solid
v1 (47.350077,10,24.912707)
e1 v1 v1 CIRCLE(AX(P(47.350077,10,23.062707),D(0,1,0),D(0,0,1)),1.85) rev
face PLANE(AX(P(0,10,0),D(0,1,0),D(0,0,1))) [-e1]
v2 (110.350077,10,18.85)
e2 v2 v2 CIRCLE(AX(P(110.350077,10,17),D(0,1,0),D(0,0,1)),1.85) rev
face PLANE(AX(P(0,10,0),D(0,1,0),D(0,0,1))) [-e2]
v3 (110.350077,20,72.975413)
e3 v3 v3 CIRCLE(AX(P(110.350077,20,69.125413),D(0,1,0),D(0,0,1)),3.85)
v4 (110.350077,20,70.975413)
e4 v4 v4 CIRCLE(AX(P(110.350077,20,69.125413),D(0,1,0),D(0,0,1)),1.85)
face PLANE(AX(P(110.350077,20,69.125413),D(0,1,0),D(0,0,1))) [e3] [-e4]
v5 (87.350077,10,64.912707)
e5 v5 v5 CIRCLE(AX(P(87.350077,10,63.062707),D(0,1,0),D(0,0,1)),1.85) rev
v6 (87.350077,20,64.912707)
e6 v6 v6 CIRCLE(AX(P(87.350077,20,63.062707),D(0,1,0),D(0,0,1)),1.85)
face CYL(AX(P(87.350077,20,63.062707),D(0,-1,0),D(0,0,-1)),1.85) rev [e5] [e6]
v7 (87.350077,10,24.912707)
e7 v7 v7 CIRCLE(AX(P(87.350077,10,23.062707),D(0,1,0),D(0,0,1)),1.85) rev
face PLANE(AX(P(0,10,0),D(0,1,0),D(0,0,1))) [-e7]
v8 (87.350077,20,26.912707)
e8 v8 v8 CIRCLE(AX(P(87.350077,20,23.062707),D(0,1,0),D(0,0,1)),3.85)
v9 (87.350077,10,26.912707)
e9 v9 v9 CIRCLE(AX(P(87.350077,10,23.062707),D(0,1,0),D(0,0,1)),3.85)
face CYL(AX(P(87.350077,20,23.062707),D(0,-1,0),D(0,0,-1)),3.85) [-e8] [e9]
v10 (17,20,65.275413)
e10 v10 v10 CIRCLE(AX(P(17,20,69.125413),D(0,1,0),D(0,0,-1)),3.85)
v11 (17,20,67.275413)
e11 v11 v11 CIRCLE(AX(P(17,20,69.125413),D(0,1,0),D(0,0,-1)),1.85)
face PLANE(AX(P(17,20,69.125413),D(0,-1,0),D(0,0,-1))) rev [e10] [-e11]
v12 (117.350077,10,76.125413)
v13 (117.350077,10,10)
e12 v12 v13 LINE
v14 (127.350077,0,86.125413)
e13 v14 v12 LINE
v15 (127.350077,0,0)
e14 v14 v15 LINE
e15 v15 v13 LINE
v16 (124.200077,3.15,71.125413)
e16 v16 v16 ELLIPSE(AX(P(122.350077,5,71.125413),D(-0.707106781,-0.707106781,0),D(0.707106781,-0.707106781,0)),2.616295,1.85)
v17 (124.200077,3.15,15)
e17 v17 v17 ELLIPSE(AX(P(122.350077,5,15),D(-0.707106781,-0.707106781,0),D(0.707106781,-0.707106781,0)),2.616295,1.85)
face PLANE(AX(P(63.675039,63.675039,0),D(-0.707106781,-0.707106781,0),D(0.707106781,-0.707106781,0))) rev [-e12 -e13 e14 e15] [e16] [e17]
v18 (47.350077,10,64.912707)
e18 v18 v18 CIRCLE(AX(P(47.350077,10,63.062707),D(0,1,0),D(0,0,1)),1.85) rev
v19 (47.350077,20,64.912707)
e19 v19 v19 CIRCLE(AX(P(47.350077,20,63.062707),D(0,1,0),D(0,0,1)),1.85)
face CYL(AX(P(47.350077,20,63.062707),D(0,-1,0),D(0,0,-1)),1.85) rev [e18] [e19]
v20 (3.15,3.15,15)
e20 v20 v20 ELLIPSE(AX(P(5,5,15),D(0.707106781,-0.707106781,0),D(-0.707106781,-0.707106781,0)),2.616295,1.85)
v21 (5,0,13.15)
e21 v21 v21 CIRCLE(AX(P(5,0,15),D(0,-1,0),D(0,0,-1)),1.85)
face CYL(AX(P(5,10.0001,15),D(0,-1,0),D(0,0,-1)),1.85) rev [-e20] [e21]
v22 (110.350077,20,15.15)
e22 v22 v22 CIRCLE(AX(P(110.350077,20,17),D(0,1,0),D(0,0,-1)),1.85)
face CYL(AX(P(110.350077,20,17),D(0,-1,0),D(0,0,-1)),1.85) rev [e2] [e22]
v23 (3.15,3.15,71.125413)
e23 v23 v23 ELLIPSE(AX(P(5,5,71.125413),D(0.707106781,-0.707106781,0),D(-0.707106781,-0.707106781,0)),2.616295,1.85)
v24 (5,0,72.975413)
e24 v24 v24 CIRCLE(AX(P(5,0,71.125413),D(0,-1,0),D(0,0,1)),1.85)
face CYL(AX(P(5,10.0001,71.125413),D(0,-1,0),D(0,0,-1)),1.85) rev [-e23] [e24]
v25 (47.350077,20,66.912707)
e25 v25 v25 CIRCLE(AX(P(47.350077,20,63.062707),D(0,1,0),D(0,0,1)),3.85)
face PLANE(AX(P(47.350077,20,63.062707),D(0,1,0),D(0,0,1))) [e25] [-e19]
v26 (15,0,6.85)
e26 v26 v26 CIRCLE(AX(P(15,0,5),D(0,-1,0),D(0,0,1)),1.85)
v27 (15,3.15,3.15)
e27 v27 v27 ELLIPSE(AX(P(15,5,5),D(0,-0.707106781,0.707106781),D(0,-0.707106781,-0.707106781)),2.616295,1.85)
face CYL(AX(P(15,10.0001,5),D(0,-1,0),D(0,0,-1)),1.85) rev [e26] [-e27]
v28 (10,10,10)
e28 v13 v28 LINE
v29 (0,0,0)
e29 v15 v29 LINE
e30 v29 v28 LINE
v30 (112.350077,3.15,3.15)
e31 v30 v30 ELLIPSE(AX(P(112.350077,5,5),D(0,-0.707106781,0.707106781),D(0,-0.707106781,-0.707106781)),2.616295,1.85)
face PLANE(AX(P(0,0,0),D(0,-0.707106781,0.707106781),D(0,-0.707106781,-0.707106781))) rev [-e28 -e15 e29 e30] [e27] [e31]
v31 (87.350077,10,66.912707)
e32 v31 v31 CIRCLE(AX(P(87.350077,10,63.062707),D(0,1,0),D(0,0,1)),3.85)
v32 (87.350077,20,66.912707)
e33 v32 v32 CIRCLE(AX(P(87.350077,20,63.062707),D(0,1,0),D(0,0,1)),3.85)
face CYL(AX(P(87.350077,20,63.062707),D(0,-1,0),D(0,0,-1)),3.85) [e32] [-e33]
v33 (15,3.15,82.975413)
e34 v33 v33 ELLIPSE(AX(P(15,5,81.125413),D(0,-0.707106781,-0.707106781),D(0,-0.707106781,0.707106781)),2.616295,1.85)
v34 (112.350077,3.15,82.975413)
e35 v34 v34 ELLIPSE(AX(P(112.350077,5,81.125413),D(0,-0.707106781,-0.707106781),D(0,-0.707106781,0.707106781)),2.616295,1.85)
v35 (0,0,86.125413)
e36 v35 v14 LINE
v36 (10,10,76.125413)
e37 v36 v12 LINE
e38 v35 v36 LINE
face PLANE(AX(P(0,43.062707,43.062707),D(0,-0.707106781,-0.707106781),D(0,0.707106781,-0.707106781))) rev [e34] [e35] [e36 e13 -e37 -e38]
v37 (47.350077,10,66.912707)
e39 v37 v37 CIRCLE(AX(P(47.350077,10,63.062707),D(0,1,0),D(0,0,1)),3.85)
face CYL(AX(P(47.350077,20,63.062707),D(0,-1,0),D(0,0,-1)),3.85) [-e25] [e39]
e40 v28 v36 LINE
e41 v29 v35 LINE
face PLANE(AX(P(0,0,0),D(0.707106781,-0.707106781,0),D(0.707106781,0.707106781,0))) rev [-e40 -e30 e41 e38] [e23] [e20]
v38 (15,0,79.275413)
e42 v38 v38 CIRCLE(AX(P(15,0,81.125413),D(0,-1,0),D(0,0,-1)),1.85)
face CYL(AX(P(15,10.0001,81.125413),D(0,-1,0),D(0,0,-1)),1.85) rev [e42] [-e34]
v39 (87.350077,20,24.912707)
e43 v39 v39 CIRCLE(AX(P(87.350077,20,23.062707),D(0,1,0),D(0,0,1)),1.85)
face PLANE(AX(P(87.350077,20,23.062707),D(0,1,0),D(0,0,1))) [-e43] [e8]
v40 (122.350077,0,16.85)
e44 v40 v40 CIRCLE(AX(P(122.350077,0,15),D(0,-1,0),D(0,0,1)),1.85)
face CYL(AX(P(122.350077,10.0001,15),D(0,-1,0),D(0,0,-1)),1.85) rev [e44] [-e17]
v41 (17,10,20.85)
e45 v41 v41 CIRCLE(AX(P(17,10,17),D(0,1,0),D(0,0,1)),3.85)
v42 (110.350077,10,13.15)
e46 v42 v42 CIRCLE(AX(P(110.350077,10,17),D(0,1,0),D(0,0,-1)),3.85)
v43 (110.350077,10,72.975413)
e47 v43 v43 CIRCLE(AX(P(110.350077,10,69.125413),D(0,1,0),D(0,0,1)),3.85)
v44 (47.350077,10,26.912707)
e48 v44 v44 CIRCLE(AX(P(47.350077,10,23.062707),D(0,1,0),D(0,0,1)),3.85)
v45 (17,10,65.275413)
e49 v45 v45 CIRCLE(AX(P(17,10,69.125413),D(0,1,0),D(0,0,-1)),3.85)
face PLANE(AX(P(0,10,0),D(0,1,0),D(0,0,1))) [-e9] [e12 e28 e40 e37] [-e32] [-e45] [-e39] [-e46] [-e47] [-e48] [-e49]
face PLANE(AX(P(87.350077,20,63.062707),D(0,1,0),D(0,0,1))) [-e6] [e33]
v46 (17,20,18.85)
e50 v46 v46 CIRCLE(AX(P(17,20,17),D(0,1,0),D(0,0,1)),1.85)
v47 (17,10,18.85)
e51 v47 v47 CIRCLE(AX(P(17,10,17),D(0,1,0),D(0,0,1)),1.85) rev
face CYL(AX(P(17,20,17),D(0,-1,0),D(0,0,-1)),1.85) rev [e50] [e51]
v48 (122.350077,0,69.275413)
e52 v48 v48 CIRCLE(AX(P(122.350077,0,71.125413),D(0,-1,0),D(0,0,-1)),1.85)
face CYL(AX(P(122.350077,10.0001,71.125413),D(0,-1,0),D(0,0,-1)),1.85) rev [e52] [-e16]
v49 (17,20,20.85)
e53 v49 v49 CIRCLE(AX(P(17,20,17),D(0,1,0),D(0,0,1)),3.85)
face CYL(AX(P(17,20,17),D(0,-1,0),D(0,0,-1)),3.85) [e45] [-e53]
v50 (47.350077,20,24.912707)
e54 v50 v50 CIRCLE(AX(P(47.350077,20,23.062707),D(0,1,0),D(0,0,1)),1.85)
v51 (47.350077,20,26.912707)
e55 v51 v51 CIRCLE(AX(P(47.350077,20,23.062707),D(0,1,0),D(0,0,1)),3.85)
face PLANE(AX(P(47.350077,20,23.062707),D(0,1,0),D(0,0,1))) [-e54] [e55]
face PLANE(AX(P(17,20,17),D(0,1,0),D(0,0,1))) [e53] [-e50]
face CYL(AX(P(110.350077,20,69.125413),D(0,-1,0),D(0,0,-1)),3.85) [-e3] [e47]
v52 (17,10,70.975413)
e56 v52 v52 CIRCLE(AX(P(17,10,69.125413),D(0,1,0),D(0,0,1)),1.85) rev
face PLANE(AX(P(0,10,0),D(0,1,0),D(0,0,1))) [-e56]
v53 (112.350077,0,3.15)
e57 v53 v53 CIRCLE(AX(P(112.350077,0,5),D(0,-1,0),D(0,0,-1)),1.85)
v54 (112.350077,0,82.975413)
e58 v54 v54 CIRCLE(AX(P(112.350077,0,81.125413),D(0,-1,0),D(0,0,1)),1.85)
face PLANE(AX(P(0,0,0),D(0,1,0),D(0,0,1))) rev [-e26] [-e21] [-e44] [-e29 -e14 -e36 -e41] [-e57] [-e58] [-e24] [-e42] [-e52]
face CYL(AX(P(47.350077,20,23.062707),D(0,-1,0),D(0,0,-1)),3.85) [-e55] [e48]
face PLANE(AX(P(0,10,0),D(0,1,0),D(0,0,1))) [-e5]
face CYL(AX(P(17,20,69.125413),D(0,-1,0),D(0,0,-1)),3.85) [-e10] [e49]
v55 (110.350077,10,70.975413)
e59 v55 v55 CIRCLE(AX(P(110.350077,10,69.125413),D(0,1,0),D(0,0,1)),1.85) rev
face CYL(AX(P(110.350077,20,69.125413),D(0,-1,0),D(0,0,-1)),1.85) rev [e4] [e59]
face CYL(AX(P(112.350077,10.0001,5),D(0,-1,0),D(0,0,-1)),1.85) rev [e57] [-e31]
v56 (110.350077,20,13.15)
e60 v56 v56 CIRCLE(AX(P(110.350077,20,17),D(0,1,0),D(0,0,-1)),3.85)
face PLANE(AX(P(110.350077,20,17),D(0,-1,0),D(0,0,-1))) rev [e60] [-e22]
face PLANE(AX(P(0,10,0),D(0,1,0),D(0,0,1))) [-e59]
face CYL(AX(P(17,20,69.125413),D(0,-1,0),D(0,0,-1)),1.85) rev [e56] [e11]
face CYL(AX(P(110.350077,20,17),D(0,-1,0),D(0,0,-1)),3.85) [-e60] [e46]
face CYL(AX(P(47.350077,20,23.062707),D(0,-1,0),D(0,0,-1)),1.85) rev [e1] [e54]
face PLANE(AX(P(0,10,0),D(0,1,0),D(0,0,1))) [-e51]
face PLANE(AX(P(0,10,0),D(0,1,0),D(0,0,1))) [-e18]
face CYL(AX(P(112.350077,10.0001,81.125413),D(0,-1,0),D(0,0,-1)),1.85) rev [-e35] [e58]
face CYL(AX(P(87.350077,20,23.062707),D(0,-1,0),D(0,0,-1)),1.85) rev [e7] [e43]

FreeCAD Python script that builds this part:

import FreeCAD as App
import Part
import Sketcher

V = App.Vector

doc = App.newDocument("Part")
params = doc.addObject("Spreadsheet::Sheet", "Params")
for row, (alias, value) in enumerate([
    ("sketch3_diameter", "3.7 mm"),
    ("sketch4_diameter", "7.7 mm"),
    ("sketch4_diameter2", "3.7 mm"),
    ("pad1_length", "10 mm"),
    ("sketch5_diameter", "7.7 mm"),
    ("sketch5_diameter2", "3.7 mm"),
    ("pad2_length", "10 mm"),
], start=1):
    params.set(f"A{row}", alias)
    params.set(f"B{row}", "=" + value)
    params.setAlias(f"B{row}", alias)

body = doc.addObject("PartDesign::Body", "Body")

# Sketch on XZ plane
sketch1 = body.newObject("Sketcher::SketchObject", "Sketch")
sketch1.AttachmentSupport = (doc.getObject("XZ_Plane"), [""])
sketch1.MapMode = "FlatFace"
sketch1.addGeometry(Part.LineSegment(V(127, 0, 0), V(0, 0, 0)), False)
sketch1.addGeometry(Part.LineSegment(V(0, 0, 0), V(0, 86, 0)), False)
sketch1.addGeometry(Part.LineSegment(V(0, 86, 0), V(127, 86, 0)), False)
sketch1.addGeometry(Part.LineSegment(V(127, 86, 0), V(127, 0, 0)), False)
sketch1.addConstraint(Sketcher.Constraint("Coincident", 0, 2, 1, 1))
sketch1.addConstraint(Sketcher.Constraint("Coincident", 1, 2, 2, 1))
sketch1.addConstraint(Sketcher.Constraint("Coincident", 2, 2, 3, 1))
sketch1.addConstraint(Sketcher.Constraint("Coincident", 3, 2, 0, 1))
sketch1.addConstraint(Sketcher.Constraint("Horizontal", 0))
sketch1.addConstraint(Sketcher.Constraint("Vertical", 1))
sketch1.addConstraint(Sketcher.Constraint("Horizontal", 2))
sketch1.addConstraint(Sketcher.Constraint("Vertical", 3))
sketch1.addConstraint(Sketcher.Constraint("Coincident", 0, 2, -1, 1))
sketch1.addConstraint(Sketcher.Constraint("DistanceX", 0, 2, 0, 1, 127.350077))
sketch1.addConstraint(Sketcher.Constraint("DistanceY", 1, 1, 1, 2, 86.125413))

# Sketch on XZ plane
sketch2 = body.newObject("Sketcher::SketchObject", "Sketch001")
sketch2.AttachmentSupport = (doc.getObject("XZ_Plane"), [""])
sketch2.MapMode = "FlatFace"
sketch2.AttachmentOffset = App.Placement(V(0, 0, -10), App.Rotation())
sketch2.addGeometry(Part.LineSegment(V(10, 10, 0), V(10, 76, 0)), False)
sketch2.addGeometry(Part.LineSegment(V(10, 76, 0), V(117, 76, 0)), False)
sketch2.addGeometry(Part.LineSegment(V(117, 76, 0), V(117, 10, 0)), False)
sketch2.addGeometry(Part.LineSegment(V(117, 10, 0), V(10, 10, 0)), False)
sketch2.addConstraint(Sketcher.Constraint("Coincident", 0, 2, 1, 1))
sketch2.addConstraint(Sketcher.Constraint("Coincident", 1, 2, 2, 1))
sketch2.addConstraint(Sketcher.Constraint("Coincident", 2, 2, 3, 1))
sketch2.addConstraint(Sketcher.Constraint("Coincident", 3, 2, 0, 1))
sketch2.addConstraint(Sketcher.Constraint("Vertical", 0))
sketch2.addConstraint(Sketcher.Constraint("Horizontal", 1))
sketch2.addConstraint(Sketcher.Constraint("Vertical", 2))
sketch2.addConstraint(Sketcher.Constraint("Horizontal", 3))
sketch2.addConstraint(Sketcher.Constraint("DistanceX", -1, 1, 0, 2, 10.0))
sketch2.addConstraint(Sketcher.Constraint("DistanceY", -1, 1, 2, 2, 10.0))
sketch2.addConstraint(Sketcher.Constraint("DistanceX", 1, 1, 1, 2, 107.350077))
sketch2.addConstraint(Sketcher.Constraint("DistanceY", 0, 1, 0, 2, 66.125413))

additiveloft = body.newObject("PartDesign::AdditiveLoft", "AdditiveLoft")
additiveloft.Profile = sketch1
additiveloft.Sections = [sketch2]

# Sketch on XZ plane
sketch3 = body.newObject("Sketcher::SketchObject", "Sketch002")
sketch3.AttachmentSupport = (doc.getObject("XZ_Plane"), [""])
sketch3.MapMode = "FlatFace"
sketch3.addGeometry(Part.Circle(V(5, 15, 0), V(0, 0, 1), 1.9), False)
sketch3.addGeometry(Part.Circle(V(5, 71.1, 0), V(0, 0, 1), 1.9), False)
sketch3.addGeometry(Part.Circle(V(122.4, 71.1, 0), V(0, 0, 1), 1.9), False)
sketch3.addGeometry(Part.Circle(V(122.4, 15, 0), V(0, 0, 1), 1.9), False)
sketch3.addGeometry(Part.Circle(V(15, 5, 0), V(0, 0, 1), 1.9), False)
sketch3.addGeometry(Part.Circle(V(15, 81.1, 0), V(0, 0, 1), 1.9), False)
sketch3.addGeometry(Part.Circle(V(112.4, 81.1, 0), V(0, 0, 1), 1.9), False)
sketch3.addGeometry(Part.Circle(V(112.4, 5, 0), V(0, 0, 1), 1.9), False)
sketch3.addConstraint(Sketcher.Constraint("Equal", 0, 1))
sketch3.addConstraint(Sketcher.Constraint("Equal", 1, 2))
sketch3.addConstraint(Sketcher.Constraint("Equal", 2, 3))
sketch3.addConstraint(Sketcher.Constraint("Equal", 3, 4))
sketch3.addConstraint(Sketcher.Constraint("Equal", 4, 5))
sketch3.addConstraint(Sketcher.Constraint("Equal", 5, 6))
sketch3.addConstraint(Sketcher.Constraint("Equal", 6, 7))
sketch3.addConstraint(Sketcher.Constraint("Horizontal", 1, 3, 2, 3))
sketch3.addConstraint(Sketcher.Constraint("Horizontal", 0, 3, 3, 3))
sketch3.addConstraint(Sketcher.Constraint("Horizontal", 5, 3, 6, 3))
sketch3.addConstraint(Sketcher.Constraint("Horizontal", 4, 3, 7, 3))
sketch3.addConstraint(Sketcher.Constraint("Vertical", 0, 3, 1, 3))
sketch3.addConstraint(Sketcher.Constraint("Vertical", 2, 3, 3, 3))
sketch3.addConstraint(Sketcher.Constraint("Vertical", 4, 3, 5, 3))
sketch3.addConstraint(Sketcher.Constraint("Vertical", 6, 3, 7, 3))
sketch3.addConstraint(Sketcher.Constraint("Diameter", 0, 3.7))
sketch3.addConstraint(Sketcher.Constraint("DistanceX", -1, 1, 0, 3, 5.0))
sketch3.addConstraint(Sketcher.Constraint("DistanceY", -1, 1, 0, 3, 15.0))
sketch3.addConstraint(Sketcher.Constraint("DistanceX", -1, 1, 4, 3, 15.0))
sketch3.addConstraint(Sketcher.Constraint("DistanceY", -1, 1, 4, 3, 5.0))
sketch3.addConstraint(Sketcher.Constraint("DistanceY", 1, 3, 5, 3, 10.0))
sketch3.addConstraint(Sketcher.Constraint("DistanceX", 6, 3, 2, 3, 10.0))
sketch3.addConstraint(Sketcher.Constraint("DistanceY", -1, 1, 1, 3, 71.125413))
sketch3.addConstraint(Sketcher.Constraint("DistanceX", -1, 1, 2, 3, 122.350077))
sketch3.setExpression("Constraints[15]", "Params.sketch3_diameter")
pocket1 = body.newObject("PartDesign::Pocket", "Pocket")
pocket1.Profile = sketch3
pocket1.Type = "ThroughAll"

# Sketch on XZ plane
sketch4 = body.newObject("Sketcher::SketchObject", "Sketch003")
sketch4.AttachmentSupport = (doc.getObject("XZ_Plane"), [""])
sketch4.MapMode = "FlatFace"
sketch4.AttachmentOffset = App.Placement(V(0, 0, -10), App.Rotation())
sketch4.addGeometry(Part.Circle(V(110.4, 69.1, 0), V(0, 0, 1), 3.9), False)
sketch4.addGeometry(Part.Circle(V(110.4, 69.1, 0), V(0, 0, 1), 1.9), False)
sketch4.addGeometry(Part.Circle(V(110.4, 17, 0), V(0, 0, 1), 3.9), False)
sketch4.addGeometry(Part.Circle(V(110.4, 17, 0), V(0, 0, 1), 1.9), False)
sketch4.addGeometry(Part.Circle(V(17, 17, 0), V(0, 0, 1), 3.9), False)
sketch4.addGeometry(Part.Circle(V(17, 17, 0), V(0, 0, 1), 1.9), False)
sketch4.addGeometry(Part.Circle(V(17, 69.1, 0), V(0, 0, 1), 3.9), False)
sketch4.addGeometry(Part.Circle(V(17, 69.1, 0), V(0, 0, 1), 1.9), False)
sketch4.addConstraint(Sketcher.Constraint("Coincident", 1, 3, 0, 3))
sketch4.addConstraint(Sketcher.Constraint("Coincident", 3, 3, 2, 3))
sketch4.addConstraint(Sketcher.Constraint("Coincident", 5, 3, 4, 3))
sketch4.addConstraint(Sketcher.Constraint("Coincident", 7, 3, 6, 3))
sketch4.addConstraint(Sketcher.Constraint("Equal", 0, 2))
sketch4.addConstraint(Sketcher.Constraint("Equal", 1, 3))
sketch4.addConstraint(Sketcher.Constraint("Equal", 2, 4))
sketch4.addConstraint(Sketcher.Constraint("Equal", 3, 5))
sketch4.addConstraint(Sketcher.Constraint("Equal", 4, 6))
sketch4.addConstraint(Sketcher.Constraint("Equal", 5, 7))
sketch4.addConstraint(Sketcher.Constraint("Horizontal", 3, 3, 4, 3))
sketch4.addConstraint(Sketcher.Constraint("Horizontal", 1, 3, 6, 3))
sketch4.addConstraint(Sketcher.Constraint("Vertical", 1, 3, 2, 3))
sketch4.addConstraint(Sketcher.Constraint("Vertical", 5, 3, 6, 3))
sketch4.addConstraint(Sketcher.Constraint("Diameter", 0, 7.7))
sketch4.addConstraint(Sketcher.Constraint("Diameter", 1, 3.7))
sketch4.addConstraint(Sketcher.Constraint("DistanceY", -1, 1, 2, 3, 17.0))
sketch4.addConstraint(Sketcher.Constraint("DistanceX", -1, 1, 4, 3, 17.0))
sketch4.addConstraint(Sketcher.Constraint("DistanceX", -1, 1, 0, 3, 110.350077))
sketch4.addConstraint(Sketcher.Constraint("DistanceY", -1, 1, 0, 3, 69.125413))
sketch4.setExpression("Constraints[14]", "Params.sketch4_diameter")
sketch4.setExpression("Constraints[15]", "Params.sketch4_diameter2")
pad1 = body.newObject("PartDesign::Pad", "Pad")
pad1.Profile = sketch4
pad1.setExpression("Length", "Params.pad1_length")
pad1.Reversed = True

# Sketch on XZ plane
sketch5 = body.newObject("Sketcher::SketchObject", "Sketch004")
sketch5.AttachmentSupport = (doc.getObject("XZ_Plane"), [""])
sketch5.MapMode = "FlatFace"
sketch5.AttachmentOffset = App.Placement(V(0, 0, -10), App.Rotation())
sketch5.addGeometry(Part.Circle(V(87.4, 23.1, 0), V(0, 0, 1), 3.9), False)
sketch5.addGeometry(Part.Circle(V(87.4, 23.1, 0), V(0, 0, 1), 1.9), False)
sketch5.addGeometry(Part.Circle(V(47.4, 23.1, 0), V(0, 0, 1), 3.9), False)
sketch5.addGeometry(Part.Circle(V(47.4, 23.1, 0), V(0, 0, 1), 1.9), False)
sketch5.addGeometry(Part.Circle(V(47.4, 63.1, 0), V(0, 0, 1), 3.9), False)
sketch5.addGeometry(Part.Circle(V(47.4, 63.1, 0), V(0, 0, 1), 1.9), False)
sketch5.addGeometry(Part.Circle(V(87.4, 63.1, 0), V(0, 0, 1), 3.9), False)
sketch5.addGeometry(Part.Circle(V(87.4, 63.1, 0), V(0, 0, 1), 1.9), False)
sketch5.addConstraint(Sketcher.Constraint("Coincident", 1, 3, 0, 3))
sketch5.addConstraint(Sketcher.Constraint("Coincident", 3, 3, 2, 3))
sketch5.addConstraint(Sketcher.Constraint("Coincident", 5, 3, 4, 3))
sketch5.addConstraint(Sketcher.Constraint("Coincident", 7, 3, 6, 3))
sketch5.addConstraint(Sketcher.Constraint("Equal", 0, 2))
sketch5.addConstraint(Sketcher.Constraint("Equal", 1, 3))
sketch5.addConstraint(Sketcher.Constraint("Equal", 2, 4))
sketch5.addConstraint(Sketcher.Constraint("Equal", 3, 5))
sketch5.addConstraint(Sketcher.Constraint("Equal", 4, 6))
sketch5.addConstraint(Sketcher.Constraint("Equal", 5, 7))
sketch5.addConstraint(Sketcher.Constraint("Horizontal", 1, 3, 2, 3))
sketch5.addConstraint(Sketcher.Constraint("Horizontal", 5, 3, 6, 3))
sketch5.addConstraint(Sketcher.Constraint("Vertical", 3, 3, 4, 3))
sketch5.addConstraint(Sketcher.Constraint("Vertical", 1, 3, 6, 3))
sketch5.addConstraint(Sketcher.Constraint("Diameter", 0, 7.7))
sketch5.addConstraint(Sketcher.Constraint("Diameter", 1, 3.7))
sketch5.addConstraint(Sketcher.Constraint("DistanceX", 2, 3, 0, 3, 40.0))
sketch5.addConstraint(Sketcher.Constraint("DistanceY", 2, 3, 4, 3, 40.0))
sketch5.addConstraint(Sketcher.Constraint("DistanceX", -1, 1, 0, 3, 87.350077))
sketch5.addConstraint(Sketcher.Constraint("DistanceY", -1, 1, 0, 3, 23.062707))
sketch5.setExpression("Constraints[14]", "Params.sketch5_diameter")
sketch5.setExpression("Constraints[15]", "Params.sketch5_diameter2")
pad2 = body.newObject("PartDesign::Pad", "Pad001")
pad2.Profile = sketch5
pad2.setExpression("Length", "Params.pad2_length")
pad2.Reversed = True

doc.recompute()
